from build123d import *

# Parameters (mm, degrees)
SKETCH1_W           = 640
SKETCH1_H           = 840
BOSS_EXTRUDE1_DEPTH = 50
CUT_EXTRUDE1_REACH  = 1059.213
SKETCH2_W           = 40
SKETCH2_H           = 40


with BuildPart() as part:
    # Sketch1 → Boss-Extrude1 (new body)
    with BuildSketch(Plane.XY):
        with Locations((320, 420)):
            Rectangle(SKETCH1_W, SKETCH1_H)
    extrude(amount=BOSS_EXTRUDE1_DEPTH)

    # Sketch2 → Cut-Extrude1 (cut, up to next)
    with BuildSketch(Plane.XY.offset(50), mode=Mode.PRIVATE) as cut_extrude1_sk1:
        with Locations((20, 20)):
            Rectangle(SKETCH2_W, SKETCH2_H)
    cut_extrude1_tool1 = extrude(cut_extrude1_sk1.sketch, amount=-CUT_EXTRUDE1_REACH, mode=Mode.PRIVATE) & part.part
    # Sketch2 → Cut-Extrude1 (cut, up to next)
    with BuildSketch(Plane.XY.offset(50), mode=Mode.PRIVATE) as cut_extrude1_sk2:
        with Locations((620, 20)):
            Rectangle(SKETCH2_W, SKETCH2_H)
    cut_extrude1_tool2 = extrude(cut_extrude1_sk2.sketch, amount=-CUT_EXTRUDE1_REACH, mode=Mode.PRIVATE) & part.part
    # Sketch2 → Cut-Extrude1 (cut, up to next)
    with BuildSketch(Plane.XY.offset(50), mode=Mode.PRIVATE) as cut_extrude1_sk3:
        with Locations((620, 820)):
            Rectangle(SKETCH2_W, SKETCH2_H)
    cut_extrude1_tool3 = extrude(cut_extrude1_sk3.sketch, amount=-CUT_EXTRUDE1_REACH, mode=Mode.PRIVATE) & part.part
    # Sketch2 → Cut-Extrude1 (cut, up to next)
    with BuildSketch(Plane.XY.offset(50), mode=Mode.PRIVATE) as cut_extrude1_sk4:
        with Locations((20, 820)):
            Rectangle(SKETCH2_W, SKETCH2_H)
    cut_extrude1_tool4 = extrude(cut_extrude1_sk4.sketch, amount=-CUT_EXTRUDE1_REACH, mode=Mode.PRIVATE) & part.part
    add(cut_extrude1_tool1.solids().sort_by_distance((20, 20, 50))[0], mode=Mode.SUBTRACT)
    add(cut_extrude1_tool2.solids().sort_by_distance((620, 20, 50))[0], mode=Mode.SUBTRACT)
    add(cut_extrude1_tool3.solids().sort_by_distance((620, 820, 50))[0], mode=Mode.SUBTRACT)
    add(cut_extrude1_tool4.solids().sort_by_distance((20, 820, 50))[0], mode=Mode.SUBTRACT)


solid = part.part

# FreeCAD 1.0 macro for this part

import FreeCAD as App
import Part
import Sketcher
from FreeCAD import Vector


def add_polygon(sketch, points):
    """Adds a closed chain of lines whose ends are joined by coincident constraints."""
    first, n = sketch.GeometryCount, len(points)
    for a, b in zip(points, points[1:] + points[:1]):
        sketch.addGeometry(Part.LineSegment(App.Vector(*a, 0), App.Vector(*b, 0)), False)
    for i in range(n):
        sketch.addConstraint(Sketcher.Constraint("Coincident", first + i, 2, first + (i + 1) % n, 1))

doc = App.newDocument("Part")
params = doc.addObject("Spreadsheet::Sheet", "Params")
for row, (alias, value) in enumerate([
    ("sketch1_width", "640 mm"),
    ("sketch1_height", "840 mm"),
    ("pad1_length", "50 mm"),
    ("sketch2_width", "40 mm"),
    ("sketch3_width", "40 mm"),
    ("sketch4_width", "40 mm"),
    ("sketch5_width", "40 mm"),
], start=1):
    params.set(f"A{row}", alias)
    params.set(f"B{row}", "=" + value)
    params.setAlias(f"B{row}", alias)

body = doc.addObject("PartDesign::Body", "Body")

sketch1 = body.newObject("Sketcher::SketchObject", "Sketch")
sketch1.AttachmentSupport = (doc.getObject("XY_Plane"), [""])
sketch1.MapMode = "FlatFace"
add_polygon(sketch1, [(0, 840), (0, 0), (640, 0), (640, 840)])
sketch1.addConstraint([
    Sketcher.Constraint("Vertical", 0),
    Sketcher.Constraint("Horizontal", 1),
    Sketcher.Constraint("Vertical", 2),
    Sketcher.Constraint("Horizontal", 3),
    Sketcher.Constraint("Coincident", 0, 2, -1, 1),
    Sketcher.Constraint("DistanceX", 1, 1, 1, 2, 640.0),
    Sketcher.Constraint("DistanceY", 0, 2, 0, 1, 840.0),
])
sketch1.setExpression("Constraints[9]", "Params.sketch1_width")
sketch1.setExpression("Constraints[10]", "Params.sketch1_height")
pad1 = body.newObject("PartDesign::Pad", "Pad")
pad1.Profile = sketch1
pad1.setExpression("Length", "Params.pad1_length")

sketch2 = body.newObject("Sketcher::SketchObject", "Sketch001")
sketch2.AttachmentSupport = (doc.getObject("XY_Plane"), [""])
sketch2.MapMode = "FlatFace"
sketch2.AttachmentOffset = App.Placement(Vector(0, 0, 50), App.Rotation())
add_polygon(sketch2, [(0, 40), (0, 0), (40, 0), (40, 40)])
sketch2.addConstraint([
    Sketcher.Constraint("Vertical", 0),
    Sketcher.Constraint("Horizontal", 1),
    Sketcher.Constraint("Vertical", 2),
    Sketcher.Constraint("Horizontal", 3),
    Sketcher.Constraint("Coincident", 0, 2, -1, 1),
    Sketcher.Constraint("Equal", 3, 0),
    Sketcher.Constraint("DistanceX", 1, 1, 1, 2, 40.0),
])
sketch2.setExpression("Constraints[10]", "Params.sketch2_width")
pocket1 = body.newObject("PartDesign::Pocket", "Pocket")
pocket1.Profile = sketch2
pocket1.Type = "UpToFirst"

sketch3 = body.newObject("Sketcher::SketchObject", "Sketch002")
sketch3.AttachmentSupport = (doc.getObject("XY_Plane"), [""])
sketch3.MapMode = "FlatFace"
sketch3.AttachmentOffset = App.Placement(Vector(0, 0, 50), App.Rotation())
add_polygon(sketch3, [(600, 40), (600, 0), (640, 0), (640, 40)])
sketch3.addConstraint([
    Sketcher.Constraint("Vertical", 0),
    Sketcher.Constraint("Horizontal", 1),
    Sketcher.Constraint("Vertical", 2),
    Sketcher.Constraint("Horizontal", 3),
    Sketcher.Constraint("PointOnObject", 0, 2, -1),
    Sketcher.Constraint("Equal", 3, 0),
    Sketcher.Constraint("DistanceX", 1, 1, 1, 2, 40.0),
    Sketcher.Constraint("DistanceX", -1, 1, 0, 2, 600.0),
])
sketch3.setExpression("Constraints[10]", "Params.sketch3_width")
pocket2 = body.newObject("PartDesign::Pocket", "Pocket001")
pocket2.Profile = sketch3
pocket2.Type = "UpToFirst"

sketch4 = body.newObject("Sketcher::SketchObject", "Sketch003")
sketch4.AttachmentSupport = (doc.getObject("XY_Plane"), [""])
sketch4.MapMode = "FlatFace"
sketch4.AttachmentOffset = App.Placement(Vector(0, 0, 50), App.Rotation())
add_polygon(sketch4, [(600, 840), (600, 800), (640, 800), (640, 840)])
sketch4.addConstraint([
    Sketcher.Constraint("Vertical", 0),
    Sketcher.Constraint("Horizontal", 1),
    Sketcher.Constraint("Vertical", 2),
    Sketcher.Constraint("Horizontal", 3),
    Sketcher.Constraint("Equal", 3, 0),
    Sketcher.Constraint("DistanceX", 1, 1, 1, 2, 40.0),
    Sketcher.Constraint("DistanceX", -1, 1, 0, 2, 600.0),
    Sketcher.Constraint("DistanceY", -1, 1, 0, 2, 800.0),
])
sketch4.setExpression("Constraints[9]", "Params.sketch4_width")
pocket3 = body.newObject("PartDesign::Pocket", "Pocket002")
pocket3.Profile = sketch4
pocket3.Type = "UpToFirst"

sketch5 = body.newObject("Sketcher::SketchObject", "Sketch004")
sketch5.AttachmentSupport = (doc.getObject("XY_Plane"), [""])
sketch5.MapMode = "FlatFace"
sketch5.AttachmentOffset = App.Placement(Vector(0, 0, 50), App.Rotation())
add_polygon(sketch5, [(0, 840), (0, 800), (40, 800), (40, 840)])
sketch5.addConstraint([
    Sketcher.Constraint("Vertical", 0),
    Sketcher.Constraint("Horizontal", 1),
    Sketcher.Constraint("Vertical", 2),
    Sketcher.Constraint("Horizontal", 3),
    Sketcher.Constraint("PointOnObject", 0, 2, -2),
    Sketcher.Constraint("Equal", 3, 0),
    Sketcher.Constraint("DistanceX", 1, 1, 1, 2, 40.0),
    Sketcher.Constraint("DistanceY", -1, 1, 0, 2, 800.0),
])
sketch5.setExpression("Constraints[10]", "Params.sketch5_width")
pocket4 = body.newObject("PartDesign::Pocket", "Pocket003")
pocket4.Profile = sketch5
pocket4.Type = "UpToFirst"

doc.recompute()
